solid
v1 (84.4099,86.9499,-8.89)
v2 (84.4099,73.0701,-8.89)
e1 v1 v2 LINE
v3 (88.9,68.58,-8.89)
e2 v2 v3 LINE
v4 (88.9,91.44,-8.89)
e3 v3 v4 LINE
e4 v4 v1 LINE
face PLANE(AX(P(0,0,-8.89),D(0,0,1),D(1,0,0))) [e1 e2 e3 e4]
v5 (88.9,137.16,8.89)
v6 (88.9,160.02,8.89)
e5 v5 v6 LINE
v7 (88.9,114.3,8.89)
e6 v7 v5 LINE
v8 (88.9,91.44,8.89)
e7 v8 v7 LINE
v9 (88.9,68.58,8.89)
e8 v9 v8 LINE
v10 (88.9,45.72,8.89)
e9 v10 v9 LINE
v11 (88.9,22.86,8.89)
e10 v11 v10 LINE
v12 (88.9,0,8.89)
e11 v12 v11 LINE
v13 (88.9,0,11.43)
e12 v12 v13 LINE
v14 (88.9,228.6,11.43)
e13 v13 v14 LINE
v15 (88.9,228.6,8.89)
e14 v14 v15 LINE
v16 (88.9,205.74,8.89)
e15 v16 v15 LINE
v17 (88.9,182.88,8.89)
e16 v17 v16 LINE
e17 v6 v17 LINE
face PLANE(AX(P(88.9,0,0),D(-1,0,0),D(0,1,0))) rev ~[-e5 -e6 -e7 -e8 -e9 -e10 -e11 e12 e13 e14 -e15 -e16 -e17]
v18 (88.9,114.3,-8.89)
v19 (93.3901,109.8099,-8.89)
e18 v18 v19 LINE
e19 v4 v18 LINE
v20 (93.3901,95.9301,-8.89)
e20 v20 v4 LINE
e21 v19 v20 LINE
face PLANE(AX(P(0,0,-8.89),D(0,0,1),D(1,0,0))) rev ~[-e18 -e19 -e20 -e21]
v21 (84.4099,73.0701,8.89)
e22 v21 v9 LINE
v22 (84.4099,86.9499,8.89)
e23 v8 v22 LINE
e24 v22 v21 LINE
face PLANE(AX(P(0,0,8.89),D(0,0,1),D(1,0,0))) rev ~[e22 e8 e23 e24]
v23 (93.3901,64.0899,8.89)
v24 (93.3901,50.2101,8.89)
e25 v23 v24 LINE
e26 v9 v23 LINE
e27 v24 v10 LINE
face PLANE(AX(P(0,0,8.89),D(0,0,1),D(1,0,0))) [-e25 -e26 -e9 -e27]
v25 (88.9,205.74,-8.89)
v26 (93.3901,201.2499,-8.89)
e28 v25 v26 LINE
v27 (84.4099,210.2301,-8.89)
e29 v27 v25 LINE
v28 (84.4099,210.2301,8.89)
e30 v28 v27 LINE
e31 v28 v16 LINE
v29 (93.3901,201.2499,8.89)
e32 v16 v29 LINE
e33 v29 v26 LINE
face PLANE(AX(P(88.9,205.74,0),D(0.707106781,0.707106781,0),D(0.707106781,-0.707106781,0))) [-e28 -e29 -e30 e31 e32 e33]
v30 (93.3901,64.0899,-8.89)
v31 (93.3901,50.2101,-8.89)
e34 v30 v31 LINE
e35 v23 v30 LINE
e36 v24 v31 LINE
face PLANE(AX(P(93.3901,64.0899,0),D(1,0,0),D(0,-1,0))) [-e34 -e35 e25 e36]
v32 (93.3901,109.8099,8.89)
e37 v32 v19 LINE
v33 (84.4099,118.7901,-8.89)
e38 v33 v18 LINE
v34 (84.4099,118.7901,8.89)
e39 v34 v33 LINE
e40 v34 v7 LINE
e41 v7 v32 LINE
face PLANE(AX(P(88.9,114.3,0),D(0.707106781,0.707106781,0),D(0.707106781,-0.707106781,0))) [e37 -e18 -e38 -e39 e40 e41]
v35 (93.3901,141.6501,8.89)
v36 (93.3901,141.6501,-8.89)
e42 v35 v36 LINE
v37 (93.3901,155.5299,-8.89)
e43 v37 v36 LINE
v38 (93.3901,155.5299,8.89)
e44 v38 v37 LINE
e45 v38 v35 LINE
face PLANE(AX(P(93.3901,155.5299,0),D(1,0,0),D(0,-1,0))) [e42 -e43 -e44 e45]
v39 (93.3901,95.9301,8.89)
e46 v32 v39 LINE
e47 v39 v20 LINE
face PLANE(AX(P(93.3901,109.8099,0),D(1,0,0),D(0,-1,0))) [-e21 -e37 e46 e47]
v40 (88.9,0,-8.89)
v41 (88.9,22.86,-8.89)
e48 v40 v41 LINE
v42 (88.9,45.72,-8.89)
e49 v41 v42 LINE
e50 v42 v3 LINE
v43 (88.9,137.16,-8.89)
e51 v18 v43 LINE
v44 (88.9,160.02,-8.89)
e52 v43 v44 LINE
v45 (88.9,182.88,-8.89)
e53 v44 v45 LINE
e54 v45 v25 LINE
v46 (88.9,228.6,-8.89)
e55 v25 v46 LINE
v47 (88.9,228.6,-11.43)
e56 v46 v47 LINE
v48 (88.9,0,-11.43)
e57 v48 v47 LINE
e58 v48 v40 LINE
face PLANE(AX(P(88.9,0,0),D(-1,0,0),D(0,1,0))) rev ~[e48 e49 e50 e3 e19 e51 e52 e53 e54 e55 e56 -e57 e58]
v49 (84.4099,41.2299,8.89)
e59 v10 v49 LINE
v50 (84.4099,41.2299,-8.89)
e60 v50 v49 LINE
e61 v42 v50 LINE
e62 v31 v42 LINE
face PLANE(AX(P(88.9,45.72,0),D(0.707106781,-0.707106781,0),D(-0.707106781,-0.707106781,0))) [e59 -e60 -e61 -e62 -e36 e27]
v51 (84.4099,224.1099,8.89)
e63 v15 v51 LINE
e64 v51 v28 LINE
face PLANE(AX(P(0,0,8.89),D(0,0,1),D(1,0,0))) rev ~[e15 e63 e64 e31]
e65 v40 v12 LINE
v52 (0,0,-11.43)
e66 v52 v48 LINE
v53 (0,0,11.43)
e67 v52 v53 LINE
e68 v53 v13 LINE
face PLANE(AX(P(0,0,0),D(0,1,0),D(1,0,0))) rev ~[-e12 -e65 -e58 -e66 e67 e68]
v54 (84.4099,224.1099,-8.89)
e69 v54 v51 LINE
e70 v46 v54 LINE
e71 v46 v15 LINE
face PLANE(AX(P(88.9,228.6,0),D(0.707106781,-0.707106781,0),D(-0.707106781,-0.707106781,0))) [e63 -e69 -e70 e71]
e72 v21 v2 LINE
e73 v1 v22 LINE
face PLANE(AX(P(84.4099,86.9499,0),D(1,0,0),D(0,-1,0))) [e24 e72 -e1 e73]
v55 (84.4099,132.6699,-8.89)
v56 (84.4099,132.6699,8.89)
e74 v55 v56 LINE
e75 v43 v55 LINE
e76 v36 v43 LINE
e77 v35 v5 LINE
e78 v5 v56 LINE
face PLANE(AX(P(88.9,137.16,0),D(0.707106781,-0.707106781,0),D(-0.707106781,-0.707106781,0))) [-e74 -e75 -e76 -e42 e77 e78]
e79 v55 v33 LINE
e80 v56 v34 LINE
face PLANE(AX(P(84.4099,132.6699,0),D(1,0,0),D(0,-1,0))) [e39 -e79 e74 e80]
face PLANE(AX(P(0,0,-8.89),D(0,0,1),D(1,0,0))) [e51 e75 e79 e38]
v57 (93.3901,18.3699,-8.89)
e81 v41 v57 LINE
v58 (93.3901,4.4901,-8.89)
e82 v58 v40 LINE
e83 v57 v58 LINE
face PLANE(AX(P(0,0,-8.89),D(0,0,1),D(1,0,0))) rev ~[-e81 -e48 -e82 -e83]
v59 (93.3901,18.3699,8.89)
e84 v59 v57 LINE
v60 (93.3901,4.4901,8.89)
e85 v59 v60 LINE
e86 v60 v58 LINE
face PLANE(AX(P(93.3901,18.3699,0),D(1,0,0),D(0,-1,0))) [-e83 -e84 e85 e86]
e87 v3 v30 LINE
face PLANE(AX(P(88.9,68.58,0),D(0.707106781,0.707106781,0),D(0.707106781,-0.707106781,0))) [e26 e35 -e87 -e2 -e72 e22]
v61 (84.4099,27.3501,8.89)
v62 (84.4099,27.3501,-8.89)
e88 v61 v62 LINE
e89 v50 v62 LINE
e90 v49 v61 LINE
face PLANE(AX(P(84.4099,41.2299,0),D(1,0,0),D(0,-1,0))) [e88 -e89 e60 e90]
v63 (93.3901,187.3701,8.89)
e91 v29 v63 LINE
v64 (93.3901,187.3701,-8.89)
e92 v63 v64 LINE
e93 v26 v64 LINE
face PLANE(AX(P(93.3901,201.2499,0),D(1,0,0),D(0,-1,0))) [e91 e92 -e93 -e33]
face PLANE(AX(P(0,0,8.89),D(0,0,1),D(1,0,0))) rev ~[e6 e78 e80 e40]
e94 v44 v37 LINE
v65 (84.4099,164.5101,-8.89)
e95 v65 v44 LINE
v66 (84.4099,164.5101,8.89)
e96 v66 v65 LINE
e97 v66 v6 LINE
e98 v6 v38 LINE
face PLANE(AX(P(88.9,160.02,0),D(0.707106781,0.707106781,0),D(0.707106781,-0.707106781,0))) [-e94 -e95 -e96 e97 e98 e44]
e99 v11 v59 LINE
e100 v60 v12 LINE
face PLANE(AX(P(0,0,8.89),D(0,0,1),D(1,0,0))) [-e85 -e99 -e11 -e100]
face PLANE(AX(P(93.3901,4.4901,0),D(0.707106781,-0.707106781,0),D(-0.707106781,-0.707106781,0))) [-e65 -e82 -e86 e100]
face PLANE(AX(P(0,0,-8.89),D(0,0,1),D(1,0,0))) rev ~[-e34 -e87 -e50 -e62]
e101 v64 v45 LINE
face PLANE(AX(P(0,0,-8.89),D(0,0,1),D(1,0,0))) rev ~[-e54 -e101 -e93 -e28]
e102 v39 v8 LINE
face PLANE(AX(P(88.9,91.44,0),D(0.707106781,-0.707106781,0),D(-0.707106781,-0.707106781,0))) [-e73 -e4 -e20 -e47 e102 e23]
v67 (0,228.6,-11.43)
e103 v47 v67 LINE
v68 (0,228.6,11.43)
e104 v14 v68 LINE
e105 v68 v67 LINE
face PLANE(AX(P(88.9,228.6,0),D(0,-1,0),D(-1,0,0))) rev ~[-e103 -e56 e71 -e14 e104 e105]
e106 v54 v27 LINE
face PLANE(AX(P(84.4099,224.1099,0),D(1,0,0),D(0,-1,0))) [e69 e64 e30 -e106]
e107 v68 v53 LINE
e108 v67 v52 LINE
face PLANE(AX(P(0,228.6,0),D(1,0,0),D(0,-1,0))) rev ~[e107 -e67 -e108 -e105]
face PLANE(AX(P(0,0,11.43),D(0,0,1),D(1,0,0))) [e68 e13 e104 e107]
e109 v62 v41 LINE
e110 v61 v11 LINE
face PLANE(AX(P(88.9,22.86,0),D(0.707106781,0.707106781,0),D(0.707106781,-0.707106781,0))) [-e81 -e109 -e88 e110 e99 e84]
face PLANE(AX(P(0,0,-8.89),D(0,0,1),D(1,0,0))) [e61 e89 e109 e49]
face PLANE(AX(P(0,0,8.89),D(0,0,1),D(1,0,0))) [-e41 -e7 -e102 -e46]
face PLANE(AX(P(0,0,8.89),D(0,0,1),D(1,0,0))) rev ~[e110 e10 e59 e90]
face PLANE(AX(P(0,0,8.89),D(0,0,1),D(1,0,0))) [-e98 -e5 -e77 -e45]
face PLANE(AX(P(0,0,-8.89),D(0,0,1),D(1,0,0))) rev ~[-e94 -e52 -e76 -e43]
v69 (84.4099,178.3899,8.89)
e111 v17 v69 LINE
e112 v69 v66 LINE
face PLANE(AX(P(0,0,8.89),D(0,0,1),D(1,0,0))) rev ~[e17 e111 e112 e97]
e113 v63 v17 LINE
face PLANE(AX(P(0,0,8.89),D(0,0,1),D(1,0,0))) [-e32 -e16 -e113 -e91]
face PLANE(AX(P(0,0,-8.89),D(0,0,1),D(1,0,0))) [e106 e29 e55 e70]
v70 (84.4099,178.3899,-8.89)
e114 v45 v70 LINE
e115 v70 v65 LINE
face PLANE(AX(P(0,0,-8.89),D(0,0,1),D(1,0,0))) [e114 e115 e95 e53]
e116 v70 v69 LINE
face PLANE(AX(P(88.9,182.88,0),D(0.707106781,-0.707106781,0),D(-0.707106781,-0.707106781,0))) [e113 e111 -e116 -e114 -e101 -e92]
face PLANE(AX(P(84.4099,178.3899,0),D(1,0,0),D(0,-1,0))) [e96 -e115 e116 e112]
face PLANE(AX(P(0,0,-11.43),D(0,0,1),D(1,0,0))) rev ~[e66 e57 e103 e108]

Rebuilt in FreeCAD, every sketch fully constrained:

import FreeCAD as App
import Part
import Sketcher
Q = App.Units.Quantity

doc = App.newDocument("Part")
params = doc.addObject("Spreadsheet::Sheet", "Params")
for row, (alias, value) in enumerate([
    ("sketch1_height", "9 in"),
    ("sketch1_width", "3.5 in"),
    ("pad1_length", "0.9 in"),
    ("sketch2_length", "0.25 in"),
    ("sketch2_height", "0.9 in"),
    ("pocket1_length", "0.7 in"),
    ("sketch3_length", "0.25 in"),
    ("sketch3_height", "0.9 in"),
    ("pad2_length", "0.7 in"),
], start=1):
    params.set(f"A{row}", alias)
    params.set(f"B{row}", "=" + value)
    params.setAlias(f"B{row}", alias)

body = doc.addObject("PartDesign::Body", "Body")

# Sketch on XY plane
sketch1 = doc.addObject("Sketcher::SketchObject", "Sketch")
body.addObject(sketch1)
sketch1.AttachmentSupport = (doc.XY_Plane, [""])
sketch1.MapMode = "FlatFace"
sketch1.addGeometry([
    Part.LineSegment(App.Vector(0, 228.6, 0), App.Vector(0, 0, 0)),
    Part.LineSegment(App.Vector(0, 0, 0), App.Vector(88.9, 0, 0)),
    Part.LineSegment(App.Vector(88.9, 0, 0), App.Vector(88.9, 228.6, 0)),
    Part.LineSegment(App.Vector(88.9, 228.6, 0), App.Vector(0, 228.6, 0)),
], False)
sketch1.addConstraint([
    Sketcher.Constraint("Coincident", 0, 2, 1, 1),
    Sketcher.Constraint("Coincident", 1, 2, 2, 1),
    Sketcher.Constraint("Coincident", 2, 2, 3, 1),
    Sketcher.Constraint("Coincident", 3, 2, 0, 1),
    Sketcher.Constraint("Vertical", 0),
    Sketcher.Constraint("Horizontal", 1),
    Sketcher.Constraint("Vertical", 2),
    Sketcher.Constraint("Horizontal", 3),
    Sketcher.Constraint("Coincident", 0, 2, -1, 1),
    Sketcher.Constraint("DistanceY", 0, 2, 0, 1, Q("9 in")),
    Sketcher.Constraint("DistanceX", 1, 1, 1, 2, Q("3.5 in")),
])
sketch1.setExpression("Constraints[9]", "Params.sketch1_height")
sketch1.setExpression("Constraints[10]", "Params.sketch1_width")
pad1 = doc.addObject("PartDesign::Pad", "Pad")
body.addObject(pad1)
pad1.Profile = sketch1
pad1.setExpression("Length", "Params.pad1_length")
pad1.Midplane = True

# Sketch on XY plane
sketch2 = doc.addObject("Sketcher::SketchObject", "Sketch001")
body.addObject(sketch2)
sketch2.AttachmentSupport = (doc.XY_Plane, [""])
sketch2.MapMode = "FlatFace"
sketch2.addGeometry([
    Part.LineSegment(App.Vector(88.9, 205.74, 0), App.Vector(88.9, 228.6, 0)),  # 0
    Part.LineSegment(App.Vector(88.9, 228.6, 0), App.Vector(84.4099, 224.1099, 0)),  # 1
    Part.LineSegment(App.Vector(84.4099, 224.1099, 0), App.Vector(84.4099, 210.2301, 0)),  # 2
    Part.LineSegment(App.Vector(84.4099, 210.2301, 0), App.Vector(88.9, 205.74, 0)),  # 3
    Part.LineSegment(App.Vector(88.9, 22.86, 0), App.Vector(88.9, 45.72, 0)),  # 4
    Part.LineSegment(App.Vector(88.9, 45.72, 0), App.Vector(84.4099, 41.2299, 0)),  # 5
    Part.LineSegment(App.Vector(84.4099, 41.2299, 0), App.Vector(84.4099, 27.3501, 0)),  # 6
    Part.LineSegment(App.Vector(84.4099, 27.3501, 0), App.Vector(88.9, 22.86, 0)),  # 7
    Part.LineSegment(App.Vector(88.9, 68.58, 0), App.Vector(88.9, 91.44, 0)),  # 8
    Part.LineSegment(App.Vector(88.9, 91.44, 0), App.Vector(84.4099, 86.9499, 0)),  # 9
    Part.LineSegment(App.Vector(84.4099, 86.9499, 0), App.Vector(84.4099, 73.0701, 0)),  # 10
    Part.LineSegment(App.Vector(84.4099, 73.0701, 0), App.Vector(88.9, 68.58, 0)),  # 11
    Part.LineSegment(App.Vector(88.9, 114.3, 0), App.Vector(88.9, 137.16, 0)),  # 12
    Part.LineSegment(App.Vector(88.9, 137.16, 0), App.Vector(84.4099, 132.6699, 0)),  # 13
    Part.LineSegment(App.Vector(84.4099, 132.6699, 0), App.Vector(84.4099, 118.7901, 0)),  # 14
    Part.LineSegment(App.Vector(84.4099, 118.7901, 0), App.Vector(88.9, 114.3, 0)),  # 15
    Part.LineSegment(App.Vector(88.9, 160.02, 0), App.Vector(88.9, 182.88, 0)),  # 16
    Part.LineSegment(App.Vector(88.9, 182.88, 0), App.Vector(84.4099, 178.3899, 0)),  # 17
    Part.LineSegment(App.Vector(84.4099, 178.3899, 0), App.Vector(84.4099, 164.5101, 0)),  # 18
    Part.LineSegment(App.Vector(84.4099, 164.5101, 0), App.Vector(88.9, 160.02, 0)),  # 19
], False)
sketch2.addConstraint([
    Sketcher.Constraint("Coincident", 0, 2, 1, 1),
    Sketcher.Constraint("Coincident", 1, 2, 2, 1),
    Sketcher.Constraint("Coincident", 2, 2, 3, 1),
    Sketcher.Constraint("Coincident", 3, 2, 0, 1),
    Sketcher.Constraint("Coincident", 4, 2, 5, 1),
    Sketcher.Constraint("Coincident", 5, 2, 6, 1),
    Sketcher.Constraint("Coincident", 6, 2, 7, 1),
    Sketcher.Constraint("Coincident", 7, 2, 4, 1),
    Sketcher.Constraint("Coincident", 8, 2, 9, 1),
    Sketcher.Constraint("Coincident", 9, 2, 10, 1),
    Sketcher.Constraint("Coincident", 10, 2, 11, 1),
    Sketcher.Constraint("Coincident", 11, 2, 8, 1),
    Sketcher.Constraint("Coincident", 12, 2, 13, 1),
    Sketcher.Constraint("Coincident", 13, 2, 14, 1),
    Sketcher.Constraint("Coincident", 14, 2, 15, 1),
    Sketcher.Constraint("Coincident", 15, 2, 12, 1),
    Sketcher.Constraint("Coincident", 16, 2, 17, 1),
    Sketcher.Constraint("Coincident", 17, 2, 18, 1),
    Sketcher.Constraint("Coincident", 18, 2, 19, 1),
    Sketcher.Constraint("Coincident", 19, 2, 16, 1),
    Sketcher.Constraint("Vertical", 0),
    Sketcher.Constraint("Vertical", 2),
    Sketcher.Constraint("Vertical", 4),
    Sketcher.Constraint("Vertical", 6),
    Sketcher.Constraint("Vertical", 8),
    Sketcher.Constraint("Vertical", 10),
    Sketcher.Constraint("Vertical", 12),
    Sketcher.Constraint("Vertical", 14),
    Sketcher.Constraint("Vertical", 16),
    Sketcher.Constraint("Vertical", 18),
    Sketcher.Constraint("Perpendicular", 1, 3),
    Sketcher.Constraint("Perpendicular", 3, 5),
    Sketcher.Constraint("Perpendicular", 5, 7),
    Sketcher.Constraint("Perpendicular", 7, 9),
    Sketcher.Constraint("Perpendicular", 9, 11),
    Sketcher.Constraint("Perpendicular", 11, 13),
    Sketcher.Constraint("Perpendicular", 13, 15),
    Sketcher.Constraint("Perpendicular", 15, 17),
    Sketcher.Constraint("Perpendicular", 17, 19),
    Sketcher.Constraint("Vertical", 3, 2, 4, 2),
    Sketcher.Constraint("Vertical", 2, 2, 5, 2),
    Sketcher.Constraint("Vertical", 7, 2, 8, 2),
    Sketcher.Constraint("Vertical", 6, 2, 9, 2),
    Sketcher.Constraint("Vertical", 11, 2, 12, 2),
    Sketcher.Constraint("Vertical", 10, 2, 13, 2),
    Sketcher.Constraint("Vertical", 15, 2, 16, 2),
    Sketcher.Constraint("Vertical", 14, 2, 17, 2),
    Sketcher.Constraint("Equal", 0, 4),
    Sketcher.Constraint("Equal", 4, 8),
    Sketcher.Constraint("Equal", 8, 12),
    Sketcher.Constraint("Equal", 12, 16),
    Sketcher.Constraint("Equal", 1, 3),
    Sketcher.Constraint("DistanceY", -1, 1, 0, 2, Q("9 in")),
    Sketcher.Constraint("Distance", 1, Q("0.25 in")),
    Sketcher.Constraint("DistanceY", 0, 1, 0, 2, Q("0.9 in")),
    Sketcher.Constraint("DistanceX", -1, 1, 0, 2, Q("3.5 in")),
    Sketcher.Constraint("DistanceY", -1, 1, 4, 2, Q("1.8 in")),
    Sketcher.Constraint("DistanceY", -1, 1, 8, 2, Q("3.6 in")),
    Sketcher.Constraint("DistanceY", -1, 1, 12, 2, Q("5.4 in")),
    Sketcher.Constraint("DistanceY", -1, 1, 16, 2, Q("7.2 in")),
])
sketch2.setExpression("Constraints[53]", "Params.sketch2_length")
sketch2.setExpression("Constraints[54]", "Params.sketch2_height")
pocket1 = doc.addObject("PartDesign::Pocket", "Pocket")
body.addObject(pocket1)
pocket1.Profile = sketch2
pocket1.setExpression("Length", "Params.pocket1_length")
pocket1.Midplane = True

# Sketch on XY plane
sketch3 = doc.addObject("Sketcher::SketchObject", "Sketch002")
body.addObject(sketch3)
sketch3.AttachmentSupport = (doc.XY_Plane, [""])
sketch3.MapMode = "FlatFace"
sketch3.addGeometry([
    Part.LineSegment(App.Vector(93.3901, 18.3699, 0), App.Vector(88.9, 22.86, 0)),  # 0
    Part.LineSegment(App.Vector(88.9, 22.86, 0), App.Vector(88.9, 0, 0)),  # 1
    Part.LineSegment(App.Vector(88.9, 0, 0), App.Vector(93.3901, 4.4901, 0)),  # 2
    Part.LineSegment(App.Vector(93.3901, 4.4901, 0), App.Vector(93.3901, 18.3699, 0)),  # 3
    Part.LineSegment(App.Vector(93.3901, 64.0899, 0), App.Vector(88.9, 68.58, 0)),  # 4
    Part.LineSegment(App.Vector(88.9, 68.58, 0), App.Vector(88.9, 45.72, 0)),  # 5
    Part.LineSegment(App.Vector(88.9, 45.72, 0), App.Vector(93.3901, 50.2101, 0)),  # 6
    Part.LineSegment(App.Vector(93.3901, 50.2101, 0), App.Vector(93.3901, 64.0899, 0)),  # 7
    Part.LineSegment(App.Vector(93.3901, 109.8099, 0), App.Vector(88.9, 114.3, 0)),  # 8
    Part.LineSegment(App.Vector(88.9, 114.3, 0), App.Vector(88.9, 91.44, 0)),  # 9
    Part.LineSegment(App.Vector(88.9, 91.44, 0), App.Vector(93.3901, 95.9301, 0)),  # 10
    Part.LineSegment(App.Vector(93.3901, 95.9301, 0), App.Vector(93.3901, 109.8099, 0)),  # 11
    Part.LineSegment(App.Vector(93.3901, 155.5299, 0), App.Vector(88.9, 160.02, 0)),  # 12
    Part.LineSegment(App.Vector(88.9, 160.02, 0), App.Vector(88.9, 137.16, 0)),  # 13
    Part.LineSegment(App.Vector(88.9, 137.16, 0), App.Vector(93.3901, 141.6501, 0)),  # 14
    Part.LineSegment(App.Vector(93.3901, 141.6501, 0), App.Vector(93.3901, 155.5299, 0)),  # 15
    Part.LineSegment(App.Vector(93.3901, 201.2499, 0), App.Vector(88.9, 205.74, 0)),  # 16
    Part.LineSegment(App.Vector(88.9, 205.74, 0), App.Vector(88.9, 182.88, 0)),  # 17
    Part.LineSegment(App.Vector(88.9, 182.88, 0), App.Vector(93.3901, 187.3701, 0)),  # 18
    Part.LineSegment(App.Vector(93.3901, 187.3701, 0), App.Vector(93.3901, 201.2499, 0)),  # 19
], False)
sketch3.addConstraint([
    Sketcher.Constraint("Coincident", 0, 2, 1, 1),
    Sketcher.Constraint("Coincident", 1, 2, 2, 1),
    Sketcher.Constraint("Coincident", 2, 2, 3, 1),
    Sketcher.Constraint("Coincident", 3, 2, 0, 1),
    Sketcher.Constraint("Coincident", 4, 2, 5, 1),
    Sketcher.Constraint("Coincident", 5, 2, 6, 1),
    Sketcher.Constraint("Coincident", 6, 2, 7, 1),
    Sketcher.Constraint("Coincident", 7, 2, 4, 1),
    Sketcher.Constraint("Coincident", 8, 2, 9, 1),
    Sketcher.Constraint("Coincident", 9, 2, 10, 1),
    Sketcher.Constraint("Coincident", 10, 2, 11, 1),
    Sketcher.Constraint("Coincident", 11, 2, 8, 1),
    Sketcher.Constraint("Coincident", 12, 2, 13, 1),
    Sketcher.Constraint("Coincident", 13, 2, 14, 1),
    Sketcher.Constraint("Coincident", 14, 2, 15, 1),
    Sketcher.Constraint("Coincident", 15, 2, 12, 1),
    Sketcher.Constraint("Coincident", 16, 2, 17, 1),
    Sketcher.Constraint("Coincident", 17, 2, 18, 1),
    Sketcher.Constraint("Coincident", 18, 2, 19, 1),
    Sketcher.Constraint("Coincident", 19, 2, 16, 1),
    Sketcher.Constraint("Vertical", 1),
    Sketcher.Constraint("Vertical", 3),
    Sketcher.Constraint("Vertical", 5),
    Sketcher.Constraint("Vertical", 7),
    Sketcher.Constraint("Vertical", 9),
    Sketcher.Constraint("Vertical", 11),
    Sketcher.Constraint("Vertical", 13),
    Sketcher.Constraint("Vertical", 15),
    Sketcher.Constraint("Vertical", 17),
    Sketcher.Constraint("Vertical", 19),
    Sketcher.Constraint("PointOnObject", 1, 2, -1),
    Sketcher.Constraint("Perpendicular", 0, 2),
    Sketcher.Constraint("Perpendicular", 2, 4),
    Sketcher.Constraint("Perpendicular", 4, 6),
    Sketcher.Constraint("Perpendicular", 6, 8),
    Sketcher.Constraint("Perpendicular", 8, 10),
    Sketcher.Constraint("Perpendicular", 10, 12),
    Sketcher.Constraint("Perpendicular", 12, 14),
    Sketcher.Constraint("Perpendicular", 14, 16),
    Sketcher.Constraint("Perpendicular", 16, 18),
    Sketcher.Constraint("Vertical", 1, 2, 4, 2),
    Sketcher.Constraint("Vertical", 3, 2, 6, 2),
    Sketcher.Constraint("Vertical", 5, 2, 8, 2),
    Sketcher.Constraint("Vertical", 7, 2, 10, 2),
    Sketcher.Constraint("Vertical", 9, 2, 12, 2),
    Sketcher.Constraint("Vertical", 11, 2, 14, 2),
    Sketcher.Constraint("Vertical", 13, 2, 16, 2),
    Sketcher.Constraint("Vertical", 15, 2, 18, 2),
    Sketcher.Constraint("Equal", 1, 5),
    Sketcher.Constraint("Equal", 5, 9),
    Sketcher.Constraint("Equal", 9, 13),
    Sketcher.Constraint("Equal", 13, 17),
    Sketcher.Constraint("Equal", 0, 2),
    Sketcher.Constraint("Distance", 0, Q("0.25 in")),
    Sketcher.Constraint("DistanceY", 1, 2, 1, 1, Q("0.9 in")),
    Sketcher.Constraint("DistanceX", -1, 1, 0, 2, Q("3.5 in")),
    Sketcher.Constraint("DistanceY", -1, 1, 4, 2, Q("2.7 in")),
    Sketcher.Constraint("DistanceY", -1, 1, 8, 2, Q("4.5 in")),
    Sketcher.Constraint("DistanceY", -1, 1, 12, 2, Q("6.3 in")),
    Sketcher.Constraint("DistanceY", -1, 1, 16, 2, Q("8.1 in")),
])
sketch3.setExpression("Constraints[53]", "Params.sketch3_length")
sketch3.setExpression("Constraints[54]", "Params.sketch3_height")
pad2 = doc.addObject("PartDesign::Pad", "Pad001")
body.addObject(pad2)
pad2.Profile = sketch3
pad2.setExpression("Length", "Params.pad2_length")
pad2.Midplane = True

doc.recompute()
